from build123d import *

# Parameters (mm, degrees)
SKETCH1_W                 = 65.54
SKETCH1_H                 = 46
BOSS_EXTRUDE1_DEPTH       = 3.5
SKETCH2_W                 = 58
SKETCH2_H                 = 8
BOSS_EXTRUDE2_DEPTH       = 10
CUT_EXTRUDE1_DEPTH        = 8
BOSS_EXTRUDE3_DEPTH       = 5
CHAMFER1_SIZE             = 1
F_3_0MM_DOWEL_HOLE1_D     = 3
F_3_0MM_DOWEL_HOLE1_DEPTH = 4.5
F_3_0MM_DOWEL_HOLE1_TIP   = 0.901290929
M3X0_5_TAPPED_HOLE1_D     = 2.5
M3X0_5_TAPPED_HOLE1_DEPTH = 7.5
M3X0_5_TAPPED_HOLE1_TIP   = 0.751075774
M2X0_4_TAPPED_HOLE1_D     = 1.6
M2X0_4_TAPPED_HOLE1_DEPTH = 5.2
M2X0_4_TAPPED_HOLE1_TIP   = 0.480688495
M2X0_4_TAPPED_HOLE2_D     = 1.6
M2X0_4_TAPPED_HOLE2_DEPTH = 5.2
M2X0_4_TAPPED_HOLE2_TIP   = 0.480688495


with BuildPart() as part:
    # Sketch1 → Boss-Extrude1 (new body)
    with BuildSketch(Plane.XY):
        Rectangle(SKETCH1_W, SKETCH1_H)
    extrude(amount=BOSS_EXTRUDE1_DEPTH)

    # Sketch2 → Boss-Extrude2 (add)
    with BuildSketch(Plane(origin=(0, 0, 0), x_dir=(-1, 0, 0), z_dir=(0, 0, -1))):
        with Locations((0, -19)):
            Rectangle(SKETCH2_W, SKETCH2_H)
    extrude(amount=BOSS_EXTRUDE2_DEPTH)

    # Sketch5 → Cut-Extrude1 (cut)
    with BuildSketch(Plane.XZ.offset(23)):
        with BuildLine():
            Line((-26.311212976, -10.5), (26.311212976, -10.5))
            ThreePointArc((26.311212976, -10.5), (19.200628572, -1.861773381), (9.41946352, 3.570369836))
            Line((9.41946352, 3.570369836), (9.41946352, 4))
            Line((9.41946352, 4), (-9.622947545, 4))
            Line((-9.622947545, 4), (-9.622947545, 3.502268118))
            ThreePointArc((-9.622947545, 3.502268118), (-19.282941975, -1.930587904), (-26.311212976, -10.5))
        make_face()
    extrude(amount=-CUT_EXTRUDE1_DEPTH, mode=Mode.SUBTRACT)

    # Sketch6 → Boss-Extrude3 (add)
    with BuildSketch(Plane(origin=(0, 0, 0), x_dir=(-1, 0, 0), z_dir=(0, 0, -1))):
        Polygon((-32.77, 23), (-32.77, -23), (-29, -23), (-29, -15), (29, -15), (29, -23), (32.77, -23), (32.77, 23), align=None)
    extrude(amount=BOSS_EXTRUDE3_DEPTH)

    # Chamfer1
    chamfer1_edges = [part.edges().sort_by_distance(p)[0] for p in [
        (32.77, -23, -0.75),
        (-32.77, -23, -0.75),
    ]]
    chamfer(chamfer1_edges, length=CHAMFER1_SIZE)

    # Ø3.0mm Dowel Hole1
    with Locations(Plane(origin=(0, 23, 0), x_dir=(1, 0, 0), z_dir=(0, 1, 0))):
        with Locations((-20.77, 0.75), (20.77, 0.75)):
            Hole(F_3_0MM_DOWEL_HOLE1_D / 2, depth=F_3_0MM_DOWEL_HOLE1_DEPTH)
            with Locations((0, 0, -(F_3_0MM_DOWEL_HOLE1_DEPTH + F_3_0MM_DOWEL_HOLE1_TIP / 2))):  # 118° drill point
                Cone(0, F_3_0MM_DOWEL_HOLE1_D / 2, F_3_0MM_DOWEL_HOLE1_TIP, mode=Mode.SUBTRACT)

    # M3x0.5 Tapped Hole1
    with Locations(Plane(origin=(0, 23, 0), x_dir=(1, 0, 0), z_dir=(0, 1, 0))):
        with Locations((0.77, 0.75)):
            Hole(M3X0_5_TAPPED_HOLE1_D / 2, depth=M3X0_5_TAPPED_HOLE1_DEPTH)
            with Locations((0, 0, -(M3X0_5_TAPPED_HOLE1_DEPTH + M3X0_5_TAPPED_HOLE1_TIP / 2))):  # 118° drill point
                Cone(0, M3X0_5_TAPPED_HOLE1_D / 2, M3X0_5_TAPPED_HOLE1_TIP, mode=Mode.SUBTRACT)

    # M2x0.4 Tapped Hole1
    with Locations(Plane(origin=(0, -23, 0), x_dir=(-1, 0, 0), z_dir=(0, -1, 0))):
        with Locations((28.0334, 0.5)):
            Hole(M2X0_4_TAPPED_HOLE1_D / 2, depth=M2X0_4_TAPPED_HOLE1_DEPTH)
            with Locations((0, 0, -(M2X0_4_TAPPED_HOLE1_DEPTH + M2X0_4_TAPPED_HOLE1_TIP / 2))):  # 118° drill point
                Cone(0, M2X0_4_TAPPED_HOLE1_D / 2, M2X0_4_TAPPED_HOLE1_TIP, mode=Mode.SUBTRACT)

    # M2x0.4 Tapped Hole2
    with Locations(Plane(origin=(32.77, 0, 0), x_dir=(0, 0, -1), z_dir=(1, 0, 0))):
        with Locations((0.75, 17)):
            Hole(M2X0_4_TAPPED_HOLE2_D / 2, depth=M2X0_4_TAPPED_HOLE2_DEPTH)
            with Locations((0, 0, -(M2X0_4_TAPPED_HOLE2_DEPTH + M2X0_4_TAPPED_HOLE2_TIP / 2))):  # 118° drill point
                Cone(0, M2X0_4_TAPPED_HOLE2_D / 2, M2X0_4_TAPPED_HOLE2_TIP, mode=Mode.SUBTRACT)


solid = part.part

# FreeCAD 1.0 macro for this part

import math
import FreeCAD as App
import Part
import Sketcher

V = App.Vector
Q = App.Units.Quantity


def edges_at(feature, points):
    """Names of the edges that pass closest to the given points."""
    edges = feature.Shape.Edges
    near = lambda p: min(range(len(edges)), key=lambda i: edges[i].distToShape(Part.Vertex(*p))[0])
    return sorted({f"Edge{near(p) + 1}" for p in points})


def add_polygon(sketch, points):
    """Adds a closed chain of lines whose ends are joined by coincident constraints."""
    first, n = sketch.GeometryCount, len(points)
    for a, b in zip(points, points[1:] + points[:1]):
        sketch.addGeometry(Part.LineSegment(App.Vector(*a, 0), App.Vector(*b, 0)), False)
    for i in range(n):
        sketch.addConstraint(Sketcher.Constraint("Coincident", first + i, 2, first + (i + 1) % n, 1))

doc = App.newDocument("Part")
body = doc.addObject("PartDesign::Body", "Body")

# Sketch on XY plane
sketch1 = doc.addObject("Sketcher::SketchObject", "Sketch")
body.addObject(sketch1)
sketch1.AttachmentSupport = (doc.XY_Plane, [""])
sketch1.MapMode = "FlatFace"
add_polygon(sketch1, [(-33, 23), (-33, -23), (33, -23), (33, 23)])  # lines 0-3
sketch1.addConstraint([
    Sketcher.Constraint("Vertical", 0),
    Sketcher.Constraint("Horizontal", 1),
    Sketcher.Constraint("Vertical", 2),
    Sketcher.Constraint("Horizontal", 3),
    Sketcher.Constraint("Symmetric", 0, 2, 2, 2, -1, 1),
    Sketcher.Constraint("DistanceY", 0, 2, 0, 1, Q("46 mm")),
    Sketcher.Constraint("DistanceX", 1, 1, 1, 2, Q("65.54 mm")),
])
pad1 = doc.addObject("PartDesign::Pad", "Pad")
body.addObject(pad1)
pad1.Profile = sketch1
pad1.Length = 3.5

# Sketch on XY plane
sketch2 = doc.addObject("Sketcher::SketchObject", "Sketch001")
body.addObject(sketch2)
sketch2.AttachmentSupport = (doc.XY_Plane, [""])
sketch2.MapMode = "FlatFace"
add_polygon(sketch2, [(29, -15), (29, -23), (-29, -23), (-29, -15)])  # lines 0-3
sketch2.addConstraint([
    Sketcher.Constraint("Vertical", 0),
    Sketcher.Constraint("Horizontal", 1),
    Sketcher.Constraint("Vertical", 2),
    Sketcher.Constraint("Horizontal", 3),
    Sketcher.Constraint("DistanceX", 1, 2, 1, 1, Q("58 mm")),
    Sketcher.Constraint("DistanceY", 0, 2, 0, 1, Q("8 mm")),
    Sketcher.Constraint("DistanceX", -1, 1, 0, 2, Q("29 mm")),
    Sketcher.Constraint("DistanceY", 0, 2, -1, 1, Q("23 mm")),
])
pad2 = doc.addObject("PartDesign::Pad", "Pad001")
body.addObject(pad2)
pad2.Profile = sketch2
pad2.Length = 10
pad2.Reversed = True

# Sketch on XZ plane
sketch3 = doc.addObject("Sketcher::SketchObject", "Sketch002")
body.addObject(sketch3)
sketch3.AttachmentSupport = (doc.XZ_Plane, [""])
sketch3.MapMode = "FlatFace"
sketch3.AttachmentOffset = App.Placement(V(0, 0, 23), App.Rotation())
sketch3.addGeometry([
    Part.LineSegment(V(-26.31, -10.5, 0), V(26.31, -10.5, 0)),  # 0
    Part.ArcOfCircle(Part.Circle(V(0, -24.91, 0), V(0, 0, 1), 30), math.radians(29), math.radians(72)),  # 1
    Part.LineSegment(V(9.42, 3.57, 0), V(9.42, 4, 0)),  # 2
    Part.LineSegment(V(9.42, 4, 0), V(-9.62, 4, 0)),  # 3
    Part.LineSegment(V(-9.62, 4, 0), V(-9.62, 3.5, 0)),  # 4
    Part.ArcOfCircle(Part.Circle(V(0, -24.91, 0), V(0, 0, 1), 30), math.radians(109), math.radians(151)),  # 5
], False)
sketch3.addConstraint([
    Sketcher.Constraint("Coincident", 0, 2, 1, 1),
    Sketcher.Constraint("Coincident", 1, 2, 2, 1),
    Sketcher.Constraint("Coincident", 2, 2, 3, 1),
    Sketcher.Constraint("Coincident", 3, 2, 4, 1),
    Sketcher.Constraint("Coincident", 4, 2, 5, 1),
    Sketcher.Constraint("Coincident", 5, 2, 0, 1),
    Sketcher.Constraint("Horizontal", 0),
    Sketcher.Constraint("Vertical", 2),
    Sketcher.Constraint("Horizontal", 3),
    Sketcher.Constraint("Vertical", 4),
    Sketcher.Constraint("Coincident", 5, 3, 1, 3),
    Sketcher.Constraint("Equal", 1, 5),
    Sketcher.Constraint("PointOnObject", 1, 3, -2),
    Sketcher.Constraint("Radius", 1, Q("30 mm")),
    Sketcher.Constraint("DistanceY", -1, 1, 2, 2, Q("4 mm")),
    Sketcher.Constraint("DistanceY", 0, 2, -1, 1, Q("10.5 mm")),
    Sketcher.Constraint("DistanceX", 3, 2, 3, 1, Q("19.042411 mm")),
    Sketcher.Constraint("DistanceY", 2, 1, 2, 2, Q("0.42963 mm")),
    Sketcher.Constraint("DistanceY", 4, 2, 4, 1, Q("0.497732 mm")),
])
pocket1 = doc.addObject("PartDesign::Pocket", "Pocket")
body.addObject(pocket1)
pocket1.Profile = sketch3
pocket1.Length = 8

# Sketch on XY plane
sketch4 = doc.addObject("Sketcher::SketchObject", "Sketch003")
body.addObject(sketch4)
sketch4.AttachmentSupport = (doc.XY_Plane, [""])
sketch4.MapMode = "FlatFace"
add_polygon(sketch4, [(32.8, 23), (32.8, -23), (29, -23), (29, -15), (-29, -15), (-29, -23), (-32.8, -23), (-32.8, 23)])  # lines 0-7
sketch4.addConstraint([
    Sketcher.Constraint("Vertical", 0),
    Sketcher.Constraint("Horizontal", 1),
    Sketcher.Constraint("Vertical", 2),
    Sketcher.Constraint("Horizontal", 3),
    Sketcher.Constraint("Vertical", 4),
    Sketcher.Constraint("Horizontal", 5),
    Sketcher.Constraint("Vertical", 6),
    Sketcher.Constraint("Horizontal", 7),
    Sketcher.Constraint("Symmetric", 0, 2, 6, 2, -1, 1),
    Sketcher.Constraint("Symmetric", 1, 2, 4, 2, -2),
    Sketcher.Constraint("DistanceX", 3, 2, 3, 1, Q("58 mm")),
    Sketcher.Constraint("DistanceY", 0, 2, 0, 1, Q("46 mm")),
    Sketcher.Constraint("DistanceY", 2, 1, 2, 2, Q("8 mm")),
    Sketcher.Constraint("DistanceX", 1, 2, 1, 1, Q("3.77 mm")),
])
pad3 = doc.addObject("PartDesign::Pad", "Pad002")
body.addObject(pad3)
pad3.Profile = sketch4
pad3.Length = 5
pad3.Reversed = True
doc.recompute()

chamfer = doc.addObject("PartDesign::Chamfer", "Chamfer")
body.addObject(chamfer)
chamfer.Base = (pad3, edges_at(pad3, [(32.77, -23, -0.75), (-32.77, -23, -0.75)]))
chamfer.Size = 1

# Sketch on XZ plane
sketch5 = doc.addObject("Sketcher::SketchObject", "Sketch004")
body.addObject(sketch5)
sketch5.AttachmentSupport = (doc.XZ_Plane, [""])
sketch5.MapMode = "FlatFace"
sketch5.AttachmentOffset = App.Placement(V(0, 0, -23), App.Rotation())
sketch5.addGeometry([
    Part.Circle(V(-20.8, -0.8, 0), V(0, 0, 1), 1.5),
    Part.Circle(V(20.8, -0.8, 0), V(0, 0, 1), 1.5),
], False)
sketch5.addConstraint([
    Sketcher.Constraint("Equal", 0, 1),
    Sketcher.Constraint("Symmetric", 0, 3, 1, 3, -2),
    Sketcher.Constraint("Diameter", 0, Q("3 mm")),
    Sketcher.Constraint("DistanceX", 0, 3, -1, 1, Q("20.77 mm")),
    Sketcher.Constraint("DistanceY", 0, 3, -1, 1, Q("0.75 mm")),
])
doc.recompute()
hole = doc.addObject("PartDesign::Hole", "Hole")
body.addObject(hole)
hole.Profile = sketch5
hole.ThreadType = "None"
hole.Diameter = 3
hole.DepthType = "Dimension"
hole.Depth = 4.5
hole.DrillPoint = "Angled"
hole.DrillPointAngle = 118
hole.Reversed = True

# Sketch on XZ plane
sketch6 = doc.addObject("Sketcher::SketchObject", "Sketch005")
body.addObject(sketch6)
sketch6.AttachmentSupport = (doc.XZ_Plane, [""])
sketch6.MapMode = "FlatFace"
sketch6.AttachmentOffset = App.Placement(V(0, 0, -23), App.Rotation())
sketch6.addGeometry(Part.Circle(V(0.8, -0.8, 0), V(0, 0, 1), 1.2), False)
sketch6.addConstraint([
    Sketcher.Constraint("Diameter", 0, Q("2.5 mm")),
    Sketcher.Constraint("DistanceX", -1, 1, 0, 3, Q("0.77 mm")),
    Sketcher.Constraint("DistanceY", 0, 3, -1, 1, Q("0.75 mm")),
])
doc.recompute()
hole2 = doc.addObject("PartDesign::Hole", "Hole001")
body.addObject(hole2)
hole2.Profile = sketch6
hole2.ThreadType = "None"
hole2.Diameter = 2.5
hole2.DepthType = "Dimension"
hole2.Depth = 7.5
hole2.DrillPoint = "Angled"
hole2.DrillPointAngle = 118
hole2.Reversed = True

# Sketch on XZ plane
sketch7 = doc.addObject("Sketcher::SketchObject", "Sketch006")
body.addObject(sketch7)
sketch7.AttachmentSupport = (doc.XZ_Plane, [""])
sketch7.MapMode = "FlatFace"
sketch7.AttachmentOffset = App.Placement(V(0, 0, 23), App.Rotation())
sketch7.addGeometry(Part.Circle(V(-28, -0.5, 0), V(0, 0, 1), 0.8), False)
sketch7.addConstraint([
    Sketcher.Constraint("Diameter", 0, Q("1.6 mm")),
    Sketcher.Constraint("DistanceY", 0, 3, -1, 1, Q("0.5 mm")),
    Sketcher.Constraint("DistanceX", 0, 3, -1, 1, Q("28.0334 mm")),
])
doc.recompute()
hole3 = doc.addObject("PartDesign::Hole", "Hole002")
body.addObject(hole3)
hole3.Profile = sketch7
hole3.ThreadType = "None"
hole3.Diameter = 1.6
hole3.DepthType = "Dimension"
hole3.Depth = 5.2
hole3.DrillPoint = "Angled"
hole3.DrillPointAngle = 118

# Sketch on YZ plane
sketch8 = doc.addObject("Sketcher::SketchObject", "Sketch007")
body.addObject(sketch8)
sketch8.AttachmentSupport = (doc.YZ_Plane, [""])
sketch8.MapMode = "FlatFace"
sketch8.AttachmentOffset = App.Placement(V(0, 0, 32.77), App.Rotation())
sketch8.addGeometry(Part.Circle(V(17, -0.8, 0), V(0, 0, 1), 0.8), False)
sketch8.addConstraint([
    Sketcher.Constraint("Diameter", 0, Q("1.6 mm")),
    Sketcher.Constraint("DistanceX", -1, 1, 0, 3, Q("17 mm")),
    Sketcher.Constraint("DistanceY", 0, 3, -1, 1, Q("0.75 mm")),
])
doc.recompute()
hole4 = doc.addObject("PartDesign::Hole", "Hole003")
body.addObject(hole4)
hole4.Profile = sketch8
hole4.ThreadType = "None"
hole4.Diameter = 1.6
hole4.DepthType = "Dimension"
hole4.Depth = 5.2
hole4.DrillPoint = "Angled"
hole4.DrillPointAngle = 118

doc.recompute()
